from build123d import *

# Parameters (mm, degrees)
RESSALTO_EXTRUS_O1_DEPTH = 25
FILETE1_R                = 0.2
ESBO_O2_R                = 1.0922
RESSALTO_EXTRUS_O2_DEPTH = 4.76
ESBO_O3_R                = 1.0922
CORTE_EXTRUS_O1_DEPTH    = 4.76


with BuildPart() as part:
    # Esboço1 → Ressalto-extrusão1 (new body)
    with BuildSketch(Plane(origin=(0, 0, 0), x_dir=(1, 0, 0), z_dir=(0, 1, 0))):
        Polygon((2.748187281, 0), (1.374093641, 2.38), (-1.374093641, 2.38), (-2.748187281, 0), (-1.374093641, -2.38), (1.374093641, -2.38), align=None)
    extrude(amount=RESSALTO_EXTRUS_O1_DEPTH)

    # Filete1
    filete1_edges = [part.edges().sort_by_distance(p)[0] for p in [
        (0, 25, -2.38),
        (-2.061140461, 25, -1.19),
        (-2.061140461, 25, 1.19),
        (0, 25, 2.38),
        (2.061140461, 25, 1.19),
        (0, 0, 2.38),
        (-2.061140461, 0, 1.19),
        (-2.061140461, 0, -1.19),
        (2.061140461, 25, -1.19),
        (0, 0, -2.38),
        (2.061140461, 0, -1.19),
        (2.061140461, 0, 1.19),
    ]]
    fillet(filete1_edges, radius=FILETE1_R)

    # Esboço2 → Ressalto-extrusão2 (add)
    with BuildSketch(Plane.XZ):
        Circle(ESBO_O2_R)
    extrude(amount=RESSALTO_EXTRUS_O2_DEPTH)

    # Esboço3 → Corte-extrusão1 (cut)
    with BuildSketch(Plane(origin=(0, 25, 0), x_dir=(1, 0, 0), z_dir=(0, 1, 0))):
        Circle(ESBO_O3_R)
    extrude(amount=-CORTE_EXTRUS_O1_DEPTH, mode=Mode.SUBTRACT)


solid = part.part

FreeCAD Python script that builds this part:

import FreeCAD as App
import Part
import Sketcher
from FreeCAD import Vector
Q = App.Units.Quantity


def edges_at(feature, points):
    """Names of the edges that pass closest to the given points."""
    edges = feature.Shape.Edges
    near = lambda p: min(range(len(edges)), key=lambda i: edges[i].distToShape(Part.Vertex(*p))[0])
    return sorted({f"Edge{near(p) + 1}" for p in points})

doc = App.newDocument("Part")
body = doc.addObject("PartDesign::Body", "Body")

sketch1 = doc.addObject("Sketcher::SketchObject", "Sketch")
body.addObject(sketch1)
sketch1.AttachmentSupport = (doc.XZ_Plane, [""])
sketch1.MapMode = "FlatFace"
sketch1.addGeometry([
    Part.LineSegment(Vector(2.7, 0, 0), Vector(1.4, -2.4, 0)),
    Part.LineSegment(Vector(1.4, -2.4, 0), Vector(-1.4, -2.4, 0)),
    Part.LineSegment(Vector(-1.4, -2.4, 0), Vector(-2.7, 0, 0)),
    Part.LineSegment(Vector(-2.7, 0, 0), Vector(-1.4, 2.4, 0)),
    Part.LineSegment(Vector(-1.4, 2.4, 0), Vector(1.4, 2.4, 0)),
    Part.LineSegment(Vector(1.4, 2.4, 0), Vector(2.7, 0, 0)),
], False)
sketch1.addConstraint([
    Sketcher.Constraint("Coincident", 0, 2, 1, 1),
    Sketcher.Constraint("Coincident", 1, 2, 2, 1),
    Sketcher.Constraint("Coincident", 2, 2, 3, 1),
    Sketcher.Constraint("Coincident", 3, 2, 4, 1),
    Sketcher.Constraint("Coincident", 4, 2, 5, 1),
    Sketcher.Constraint("Coincident", 5, 2, 0, 1),
    Sketcher.Constraint("Horizontal", 1),
    Sketcher.Constraint("Horizontal", 4),
    Sketcher.Constraint("Symmetric", 0, 2, 3, 2, -1, 1),
    Sketcher.Constraint("Symmetric", 2, 2, 5, 2, -1, 1),
    Sketcher.Constraint("PointOnObject", 2, 2, -1),
    Sketcher.Constraint("Parallel", 2, 5),
    Sketcher.Constraint("Vertical", 1, 2, 3, 2),
    Sketcher.Constraint("Angle", 0, Q("-120 deg")),
    Sketcher.Constraint("DistanceY", 0, 2, -1, 1, Q("2.38 mm")),
    Sketcher.Constraint("DistanceX", 1, 2, 1, 1, Q("2.748187 mm")),
])
pad1 = doc.addObject("PartDesign::Pad", "Pad")
body.addObject(pad1)
pad1.Profile = sketch1
pad1.Length = 25
pad1.Reversed = True
doc.recompute()

fillet = doc.addObject("PartDesign::Fillet", "Fillet")
body.addObject(fillet)
fillet.Base = (pad1, edges_at(pad1, [
    (0, 25, -2.38),
    (-2.061, 25, -1.19),
    (-2.061, 25, 1.19),
    (0, 25, 2.38),
    (2.061, 25, 1.19),
    (0, 0, 2.38),
    (-2.061, 0, 1.19),
    (-2.061, 0, -1.19),
    (2.061, 25, -1.19),
    (0, 0, -2.38),
    (2.061, 0, -1.19),
    (2.061, 0, 1.19),
]))
fillet.Radius = 0.2

sketch2 = doc.addObject("Sketcher::SketchObject", "Sketch001")
body.addObject(sketch2)
sketch2.AttachmentSupport = (doc.XZ_Plane, [""])
sketch2.MapMode = "FlatFace"
sketch2.addGeometry(Part.Circle(Vector(0, 0, 0), Vector(0, 0, 1), 1.1), False)
sketch2.addConstraint([
    Sketcher.Constraint("Coincident", 0, 3, -1, 1),
    Sketcher.Constraint("Diameter", 0, Q("2.1844 mm")),
])
pad2 = doc.addObject("PartDesign::Pad", "Pad001")
body.addObject(pad2)
pad2.Profile = sketch2
pad2.Length = 4.76

sketch3 = doc.addObject("Sketcher::SketchObject", "Sketch002")
body.addObject(sketch3)
sketch3.AttachmentSupport = (doc.XZ_Plane, [""])
sketch3.MapMode = "FlatFace"
sketch3.AttachmentOffset = App.Placement(Vector(0, 0, -25), App.Rotation())
sketch3.addGeometry(Part.Circle(Vector(0, 0, 0), Vector(0, 0, 1), 1.1), False)
sketch3.addConstraint([
    Sketcher.Constraint("Coincident", 0, 3, -1, 1),
    Sketcher.Constraint("Diameter", 0, Q("2.1844 mm")),
])
pocket1 = doc.addObject("PartDesign::Pocket", "Pocket")
body.addObject(pocket1)
pocket1.Profile = sketch3
pocket1.Length = 4.76
pocket1.Reversed = True

doc.recompute()
